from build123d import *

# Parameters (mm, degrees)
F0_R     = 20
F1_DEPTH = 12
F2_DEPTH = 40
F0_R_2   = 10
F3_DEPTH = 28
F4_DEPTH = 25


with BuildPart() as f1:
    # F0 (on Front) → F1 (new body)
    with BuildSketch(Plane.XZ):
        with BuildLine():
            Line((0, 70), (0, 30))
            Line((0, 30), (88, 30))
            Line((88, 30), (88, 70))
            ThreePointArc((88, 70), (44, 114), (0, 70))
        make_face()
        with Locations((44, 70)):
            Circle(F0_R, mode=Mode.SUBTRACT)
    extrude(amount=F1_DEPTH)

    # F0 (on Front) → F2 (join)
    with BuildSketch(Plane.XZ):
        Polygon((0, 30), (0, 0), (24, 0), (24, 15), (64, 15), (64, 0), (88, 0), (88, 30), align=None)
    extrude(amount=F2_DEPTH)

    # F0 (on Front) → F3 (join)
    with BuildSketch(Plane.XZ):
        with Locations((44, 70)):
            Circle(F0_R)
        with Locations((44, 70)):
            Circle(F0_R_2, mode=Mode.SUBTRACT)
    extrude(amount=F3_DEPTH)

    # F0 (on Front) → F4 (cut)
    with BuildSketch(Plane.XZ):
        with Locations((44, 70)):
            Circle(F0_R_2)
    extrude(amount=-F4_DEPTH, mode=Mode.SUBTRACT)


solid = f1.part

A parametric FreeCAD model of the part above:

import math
import FreeCAD as App
import Part
import Sketcher

doc = App.newDocument("Part")
body = doc.addObject("PartDesign::Body", "Body")

sketch1 = body.newObject("Sketcher::SketchObject", "Sketch")
sketch1.AttachmentSupport = (doc.getObject("XZ_Plane"), [""])
sketch1.MapMode = "FlatFace"
sketch1.addGeometry(Part.LineSegment(App.Vector(0, 70, 0), App.Vector(0, 30, 0)), False)
sketch1.addGeometry(Part.LineSegment(App.Vector(0, 30, 0), App.Vector(88, 30, 0)), False)
sketch1.addGeometry(Part.LineSegment(App.Vector(88, 30, 0), App.Vector(88, 70, 0)), False)
sketch1.addGeometry(Part.ArcOfCircle(Part.Circle(App.Vector(44, 70, 0), App.Vector(0, 0, 1), 44), math.radians(0), math.radians(180)), False)
sketch1.addGeometry(Part.Circle(App.Vector(44, 70, 0), App.Vector(0, 0, 1), 20), False)
sketch1.addConstraint(Sketcher.Constraint("Coincident", 0, 2, 1, 1))
sketch1.addConstraint(Sketcher.Constraint("Coincident", 1, 2, 2, 1))
sketch1.addConstraint(Sketcher.Constraint("Tangent", 2, 2, 3, 1))
sketch1.addConstraint(Sketcher.Constraint("Tangent", 3, 2, 0, 1))
sketch1.addConstraint(Sketcher.Constraint("Vertical", 0))
sketch1.addConstraint(Sketcher.Constraint("Horizontal", 1))
sketch1.addConstraint(Sketcher.Constraint("Vertical", 2))
sketch1.addConstraint(Sketcher.Constraint("Coincident", 4, 3, 3, 3))
sketch1.addConstraint(Sketcher.Constraint("PointOnObject", 0, 2, -2))
sketch1.addConstraint(Sketcher.Constraint("Diameter", 4, 40.0))
sketch1.addConstraint(Sketcher.Constraint("Radius", 3, 44.0))
sketch1.addConstraint(Sketcher.Constraint("DistanceY", 0, 2, 0, 1, 40.0))
sketch1.addConstraint(Sketcher.Constraint("DistanceY", -1, 1, 3, 3, 70.0))
pad1 = body.newObject("PartDesign::Pad", "Pad")
pad1.Profile = sketch1
pad1.Length = 12

sketch2 = body.newObject("Sketcher::SketchObject", "Sketch001")
sketch2.AttachmentSupport = (doc.getObject("XZ_Plane"), [""])
sketch2.MapMode = "FlatFace"
sketch2.addGeometry(Part.LineSegment(App.Vector(0, 30, 0), App.Vector(0, 0, 0)), False)
sketch2.addGeometry(Part.LineSegment(App.Vector(0, 0, 0), App.Vector(24, 0, 0)), False)
sketch2.addGeometry(Part.LineSegment(App.Vector(24, 0, 0), App.Vector(24, 15, 0)), False)
sketch2.addGeometry(Part.LineSegment(App.Vector(24, 15, 0), App.Vector(64, 15, 0)), False)
sketch2.addGeometry(Part.LineSegment(App.Vector(64, 15, 0), App.Vector(64, 0, 0)), False)
sketch2.addGeometry(Part.LineSegment(App.Vector(64, 0, 0), App.Vector(88, 0, 0)), False)
sketch2.addGeometry(Part.LineSegment(App.Vector(88, 0, 0), App.Vector(88, 30, 0)), False)
sketch2.addGeometry(Part.LineSegment(App.Vector(88, 30, 0), App.Vector(0, 30, 0)), False)
sketch2.addConstraint(Sketcher.Constraint("Coincident", 0, 2, 1, 1))
sketch2.addConstraint(Sketcher.Constraint("Coincident", 1, 2, 2, 1))
sketch2.addConstraint(Sketcher.Constraint("Coincident", 2, 2, 3, 1))
sketch2.addConstraint(Sketcher.Constraint("Coincident", 3, 2, 4, 1))
sketch2.addConstraint(Sketcher.Constraint("Coincident", 4, 2, 5, 1))
sketch2.addConstraint(Sketcher.Constraint("Coincident", 5, 2, 6, 1))
sketch2.addConstraint(Sketcher.Constraint("Coincident", 6, 2, 7, 1))
sketch2.addConstraint(Sketcher.Constraint("Coincident", 7, 2, 0, 1))
sketch2.addConstraint(Sketcher.Constraint("Vertical", 0))
sketch2.addConstraint(Sketcher.Constraint("Horizontal", 1))
sketch2.addConstraint(Sketcher.Constraint("Vertical", 2))
sketch2.addConstraint(Sketcher.Constraint("Horizontal", 3))
sketch2.addConstraint(Sketcher.Constraint("Vertical", 4))
sketch2.addConstraint(Sketcher.Constraint("Horizontal", 5))
sketch2.addConstraint(Sketcher.Constraint("Vertical", 6))
sketch2.addConstraint(Sketcher.Constraint("Horizontal", 7))
sketch2.addConstraint(Sketcher.Constraint("Coincident", 0, 2, -1, 1))
sketch2.addConstraint(Sketcher.Constraint("PointOnObject", 4, 2, -1))
sketch2.addConstraint(Sketcher.Constraint("Equal", 1, 5))
sketch2.addConstraint(Sketcher.Constraint("DistanceX", 1, 1, 1, 2, 24.0))
sketch2.addConstraint(Sketcher.Constraint("DistanceX", 3, 1, 3, 2, 40.0))
sketch2.addConstraint(Sketcher.Constraint("DistanceY", 0, 2, 0, 1, 30.0))
sketch2.addConstraint(Sketcher.Constraint("DistanceY", 2, 1, 2, 2, 15.0))
pad2 = body.newObject("PartDesign::Pad", "Pad001")
pad2.Profile = sketch2
pad2.Length = 40

sketch3 = body.newObject("Sketcher::SketchObject", "Sketch002")
sketch3.AttachmentSupport = (doc.getObject("XZ_Plane"), [""])
sketch3.MapMode = "FlatFace"
sketch3.addGeometry(Part.Circle(App.Vector(44, 70, 0), App.Vector(0, 0, 1), 20), False)
sketch3.addGeometry(Part.Circle(App.Vector(44, 70, 0), App.Vector(0, 0, 1), 10), False)
sketch3.addConstraint(Sketcher.Constraint("Coincident", 1, 3, 0, 3))
sketch3.addConstraint(Sketcher.Constraint("Diameter", 0, 40.0))
sketch3.addConstraint(Sketcher.Constraint("Diameter", 1, 20.0))
sketch3.addConstraint(Sketcher.Constraint("DistanceX", -1, 1, 0, 3, 44.0))
sketch3.addConstraint(Sketcher.Constraint("DistanceY", -1, 1, 0, 3, 70.0))
pad3 = body.newObject("PartDesign::Pad", "Pad002")
pad3.Profile = sketch3
pad3.Length = 28

sketch4 = body.newObject("Sketcher::SketchObject", "Sketch003")
sketch4.AttachmentSupport = (doc.getObject("XZ_Plane"), [""])
sketch4.MapMode = "FlatFace"
sketch4.addGeometry(Part.Circle(App.Vector(44, 70, 0), App.Vector(0, 0, 1), 10), False)
sketch4.addConstraint(Sketcher.Constraint("Diameter", 0, 20.0))
sketch4.addConstraint(Sketcher.Constraint("DistanceX", -1, 1, 0, 3, 44.0))
sketch4.addConstraint(Sketcher.Constraint("DistanceY", -1, 1, 0, 3, 70.0))
pocket1 = body.newObject("PartDesign::Pocket", "Pocket")
pocket1.Profile = sketch4
pocket1.Length = 25

doc.recompute()
